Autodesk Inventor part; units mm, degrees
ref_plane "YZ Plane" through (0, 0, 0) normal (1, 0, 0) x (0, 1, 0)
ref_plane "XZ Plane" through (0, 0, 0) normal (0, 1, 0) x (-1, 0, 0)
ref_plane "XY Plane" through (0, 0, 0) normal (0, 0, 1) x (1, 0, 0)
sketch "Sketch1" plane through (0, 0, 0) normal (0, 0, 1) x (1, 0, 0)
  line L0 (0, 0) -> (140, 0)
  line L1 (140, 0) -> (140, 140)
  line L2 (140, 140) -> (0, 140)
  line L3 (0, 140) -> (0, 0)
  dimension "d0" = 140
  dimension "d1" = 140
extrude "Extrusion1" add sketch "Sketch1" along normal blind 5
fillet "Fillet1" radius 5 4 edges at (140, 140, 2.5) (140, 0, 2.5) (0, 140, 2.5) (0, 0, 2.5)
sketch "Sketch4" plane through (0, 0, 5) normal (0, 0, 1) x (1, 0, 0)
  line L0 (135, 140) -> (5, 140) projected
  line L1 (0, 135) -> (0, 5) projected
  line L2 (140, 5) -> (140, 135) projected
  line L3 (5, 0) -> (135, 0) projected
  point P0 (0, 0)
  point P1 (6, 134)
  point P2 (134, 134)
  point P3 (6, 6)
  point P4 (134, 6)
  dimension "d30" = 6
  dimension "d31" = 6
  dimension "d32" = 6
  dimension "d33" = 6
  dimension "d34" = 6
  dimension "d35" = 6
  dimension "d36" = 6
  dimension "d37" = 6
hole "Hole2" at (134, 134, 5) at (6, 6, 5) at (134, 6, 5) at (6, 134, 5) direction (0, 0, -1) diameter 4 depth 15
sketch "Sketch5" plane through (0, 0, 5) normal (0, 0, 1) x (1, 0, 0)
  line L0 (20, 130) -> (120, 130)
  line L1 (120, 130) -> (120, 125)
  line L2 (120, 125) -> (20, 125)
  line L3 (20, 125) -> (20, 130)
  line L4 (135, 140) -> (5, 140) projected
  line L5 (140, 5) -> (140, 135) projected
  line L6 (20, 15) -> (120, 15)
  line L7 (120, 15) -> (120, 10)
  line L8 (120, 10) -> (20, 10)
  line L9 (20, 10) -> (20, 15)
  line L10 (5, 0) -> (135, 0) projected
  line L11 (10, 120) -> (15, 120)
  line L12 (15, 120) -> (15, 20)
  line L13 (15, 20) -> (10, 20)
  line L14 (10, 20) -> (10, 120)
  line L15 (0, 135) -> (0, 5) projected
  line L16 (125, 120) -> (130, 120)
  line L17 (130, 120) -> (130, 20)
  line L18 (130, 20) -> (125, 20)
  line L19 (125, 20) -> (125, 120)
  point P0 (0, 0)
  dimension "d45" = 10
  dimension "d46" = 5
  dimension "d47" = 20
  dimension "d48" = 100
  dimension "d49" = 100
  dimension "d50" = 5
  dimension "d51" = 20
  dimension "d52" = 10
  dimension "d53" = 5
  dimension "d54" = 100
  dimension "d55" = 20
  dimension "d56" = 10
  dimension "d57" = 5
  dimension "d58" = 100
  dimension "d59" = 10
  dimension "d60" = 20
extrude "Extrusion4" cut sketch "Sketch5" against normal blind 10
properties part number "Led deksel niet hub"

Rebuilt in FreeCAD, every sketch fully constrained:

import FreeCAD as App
import Part
import Sketcher
Q = App.Units.Quantity


def edges_at(feature, points):
    """Names of the edges that pass closest to the given points."""
    edges = feature.Shape.Edges
    near = lambda p: min(range(len(edges)), key=lambda i: edges[i].distToShape(Part.Vertex(*p))[0])
    return sorted({f"Edge{near(p) + 1}" for p in points})

doc = App.newDocument("Part")
body = doc.addObject("PartDesign::Body", "Body")

# Sketch on XY plane
sketch1 = body.newObject("Sketcher::SketchObject", "Sketch")
sketch1.AttachmentSupport = (doc.getObject("XY_Plane"), [""])
sketch1.MapMode = "FlatFace"
sketch1.addGeometry(Part.LineSegment(App.Vector(0, 140, 0), App.Vector(0, 0, 0)), False)
sketch1.addGeometry(Part.LineSegment(App.Vector(0, 0, 0), App.Vector(140, 0, 0)), False)
sketch1.addGeometry(Part.LineSegment(App.Vector(140, 0, 0), App.Vector(140, 140, 0)), False)
sketch1.addGeometry(Part.LineSegment(App.Vector(140, 140, 0), App.Vector(0, 140, 0)), False)
sketch1.addConstraint(Sketcher.Constraint("Coincident", 0, 2, 1, 1))
sketch1.addConstraint(Sketcher.Constraint("Coincident", 1, 2, 2, 1))
sketch1.addConstraint(Sketcher.Constraint("Coincident", 2, 2, 3, 1))
sketch1.addConstraint(Sketcher.Constraint("Coincident", 3, 2, 0, 1))
sketch1.addConstraint(Sketcher.Constraint("Vertical", 0))
sketch1.addConstraint(Sketcher.Constraint("Horizontal", 1))
sketch1.addConstraint(Sketcher.Constraint("Vertical", 2))
sketch1.addConstraint(Sketcher.Constraint("Horizontal", 3))
sketch1.addConstraint(Sketcher.Constraint("Coincident", 0, 2, -1, 1))
sketch1.addConstraint(Sketcher.Constraint("Equal", 3, 0))
sketch1.addConstraint(Sketcher.Constraint("DistanceX", 1, 1, 1, 2, Q("140 mm")))
pad1 = body.newObject("PartDesign::Pad", "Pad")
pad1.Profile = sketch1
pad1.Length = 5
doc.recompute()

fillet = body.newObject("PartDesign::Fillet", "Fillet")
fillet.Base = (pad1, edges_at(pad1, [
    (140, 140, 2.5),
    (140, 0, 2.5),
    (0, 140, 2.5),
    (0, 0, 2.5),
]))
fillet.Radius = 5

# Sketch on XY plane
sketch2 = body.newObject("Sketcher::SketchObject", "Sketch001")
sketch2.AttachmentSupport = (doc.getObject("XY_Plane"), [""])
sketch2.MapMode = "FlatFace"
sketch2.AttachmentOffset = App.Placement(App.Vector(0, 0, 5), App.Rotation())
sketch2.addGeometry(Part.Circle(App.Vector(134, 134, 0), App.Vector(0, 0, 1), 2), False)
sketch2.addGeometry(Part.Circle(App.Vector(6, 6, 0), App.Vector(0, 0, 1), 2), False)
sketch2.addGeometry(Part.Circle(App.Vector(134, 6, 0), App.Vector(0, 0, 1), 2), False)
sketch2.addGeometry(Part.Circle(App.Vector(6, 134, 0), App.Vector(0, 0, 1), 2), False)
sketch2.addConstraint(Sketcher.Constraint("Equal", 0, 1))
sketch2.addConstraint(Sketcher.Constraint("Equal", 1, 2))
sketch2.addConstraint(Sketcher.Constraint("Equal", 2, 3))
sketch2.addConstraint(Sketcher.Constraint("Horizontal", 1, 3, 2, 3))
sketch2.addConstraint(Sketcher.Constraint("Horizontal", 0, 3, 3, 3))
sketch2.addConstraint(Sketcher.Constraint("Vertical", 0, 3, 2, 3))
sketch2.addConstraint(Sketcher.Constraint("Vertical", 1, 3, 3, 3))
sketch2.addConstraint(Sketcher.Constraint("Diameter", 0, Q("4 mm")))
sketch2.addConstraint(Sketcher.Constraint("DistanceX", -1, 1, 0, 3, Q("134 mm")))
sketch2.addConstraint(Sketcher.Constraint("DistanceY", -1, 1, 0, 3, Q("134 mm")))
sketch2.addConstraint(Sketcher.Constraint("DistanceX", -1, 1, 1, 3, Q("6 mm")))
sketch2.addConstraint(Sketcher.Constraint("DistanceY", -1, 1, 1, 3, Q("6 mm")))
doc.recompute()
hole = body.newObject("PartDesign::Hole", "Hole")
hole.Profile = sketch2
hole.ThreadType = "None"
hole.Diameter = 4
hole.DepthType = "Dimension"
hole.Depth = 15
hole.DrillPoint = "Flat"

# Sketch on XY plane
sketch3 = body.newObject("Sketcher::SketchObject", "Sketch002")
sketch3.AttachmentSupport = (doc.getObject("XY_Plane"), [""])
sketch3.MapMode = "FlatFace"
sketch3.AttachmentOffset = App.Placement(App.Vector(0, 0, 5), App.Rotation())
sketch3.addGeometry(Part.LineSegment(App.Vector(120, 130, 0), App.Vector(20, 130, 0)), False)
sketch3.addGeometry(Part.LineSegment(App.Vector(20, 130, 0), App.Vector(20, 125, 0)), False)
sketch3.addGeometry(Part.LineSegment(App.Vector(20, 125, 0), App.Vector(120, 125, 0)), False)
sketch3.addGeometry(Part.LineSegment(App.Vector(120, 125, 0), App.Vector(120, 130, 0)), False)
sketch3.addGeometry(Part.LineSegment(App.Vector(120, 15, 0), App.Vector(20, 15, 0)), False)
sketch3.addGeometry(Part.LineSegment(App.Vector(20, 15, 0), App.Vector(20, 10, 0)), False)
sketch3.addGeometry(Part.LineSegment(App.Vector(20, 10, 0), App.Vector(120, 10, 0)), False)
sketch3.addGeometry(Part.LineSegment(App.Vector(120, 10, 0), App.Vector(120, 15, 0)), False)
sketch3.addGeometry(Part.LineSegment(App.Vector(15, 120, 0), App.Vector(10, 120, 0)), False)
sketch3.addGeometry(Part.LineSegment(App.Vector(10, 120, 0), App.Vector(10, 20, 0)), False)
sketch3.addGeometry(Part.LineSegment(App.Vector(10, 20, 0), App.Vector(15, 20, 0)), False)
sketch3.addGeometry(Part.LineSegment(App.Vector(15, 20, 0), App.Vector(15, 120, 0)), False)
sketch3.addGeometry(Part.LineSegment(App.Vector(130, 120, 0), App.Vector(125, 120, 0)), False)
sketch3.addGeometry(Part.LineSegment(App.Vector(125, 120, 0), App.Vector(125, 20, 0)), False)
sketch3.addGeometry(Part.LineSegment(App.Vector(125, 20, 0), App.Vector(130, 20, 0)), False)
sketch3.addGeometry(Part.LineSegment(App.Vector(130, 20, 0), App.Vector(130, 120, 0)), False)
sketch3.addConstraint(Sketcher.Constraint("Coincident", 0, 2, 1, 1))
sketch3.addConstraint(Sketcher.Constraint("Coincident", 1, 2, 2, 1))
sketch3.addConstraint(Sketcher.Constraint("Coincident", 2, 2, 3, 1))
sketch3.addConstraint(Sketcher.Constraint("Coincident", 3, 2, 0, 1))
sketch3.addConstraint(Sketcher.Constraint("Coincident", 4, 2, 5, 1))
sketch3.addConstraint(Sketcher.Constraint("Coincident", 5, 2, 6, 1))
sketch3.addConstraint(Sketcher.Constraint("Coincident", 6, 2, 7, 1))
sketch3.addConstraint(Sketcher.Constraint("Coincident", 7, 2, 4, 1))
sketch3.addConstraint(Sketcher.Constraint("Coincident", 8, 2, 9, 1))
sketch3.addConstraint(Sketcher.Constraint("Coincident", 9, 2, 10, 1))
sketch3.addConstraint(Sketcher.Constraint("Coincident", 10, 2, 11, 1))
sketch3.addConstraint(Sketcher.Constraint("Coincident", 11, 2, 8, 1))
sketch3.addConstraint(Sketcher.Constraint("Coincident", 12, 2, 13, 1))
sketch3.addConstraint(Sketcher.Constraint("Coincident", 13, 2, 14, 1))
sketch3.addConstraint(Sketcher.Constraint("Coincident", 14, 2, 15, 1))
sketch3.addConstraint(Sketcher.Constraint("Coincident", 15, 2, 12, 1))
sketch3.addConstraint(Sketcher.Constraint("Horizontal", 0))
sketch3.addConstraint(Sketcher.Constraint("Vertical", 1))
sketch3.addConstraint(Sketcher.Constraint("Horizontal", 2))
sketch3.addConstraint(Sketcher.Constraint("Vertical", 3))
sketch3.addConstraint(Sketcher.Constraint("Horizontal", 4))
sketch3.addConstraint(Sketcher.Constraint("Vertical", 5))
sketch3.addConstraint(Sketcher.Constraint("Horizontal", 6))
sketch3.addConstraint(Sketcher.Constraint("Vertical", 7))
sketch3.addConstraint(Sketcher.Constraint("Horizontal", 8))
sketch3.addConstraint(Sketcher.Constraint("Vertical", 9))
sketch3.addConstraint(Sketcher.Constraint("Horizontal", 10))
sketch3.addConstraint(Sketcher.Constraint("Vertical", 11))
sketch3.addConstraint(Sketcher.Constraint("Horizontal", 12))
sketch3.addConstraint(Sketcher.Constraint("Vertical", 13))
sketch3.addConstraint(Sketcher.Constraint("Horizontal", 14))
sketch3.addConstraint(Sketcher.Constraint("Vertical", 15))
sketch3.addConstraint(Sketcher.Constraint("Horizontal", 11, 2, 12, 2))
sketch3.addConstraint(Sketcher.Constraint("Horizontal", 10, 2, 13, 2))
sketch3.addConstraint(Sketcher.Constraint("Vertical", 1, 2, 4, 2))
sketch3.addConstraint(Sketcher.Constraint("Vertical", 3, 2, 6, 2))
sketch3.addConstraint(Sketcher.Constraint("Equal", 10, 12))
sketch3.addConstraint(Sketcher.Constraint("Equal", 14, 1))
sketch3.addConstraint(Sketcher.Constraint("Equal", 3, 5))
sketch3.addConstraint(Sketcher.Constraint("Equal", 6, 9))
sketch3.addConstraint(Sketcher.Constraint("DistanceX", 0, 2, 0, 1, Q("100 mm")))
sketch3.addConstraint(Sketcher.Constraint("DistanceX", 8, 2, 8, 1, Q("5 mm")))
sketch3.addConstraint(Sketcher.Constraint("DistanceX", -1, 1, 0, 2, Q("20 mm")))
sketch3.addConstraint(Sketcher.Constraint("DistanceY", -1, 1, 5, 2, Q("10 mm")))
sketch3.addConstraint(Sketcher.Constraint("DistanceX", -1, 1, 8, 2, Q("10 mm")))
sketch3.addConstraint(Sketcher.Constraint("DistanceY", -1, 1, 9, 2, Q("20 mm")))
sketch3.addConstraint(Sketcher.Constraint("DistanceY", 8, 2, 1, 2, Q("5 mm")))
sketch3.addConstraint(Sketcher.Constraint("DistanceX", 2, 2, 12, 2, Q("5 mm")))
pocket1 = body.newObject("PartDesign::Pocket", "Pocket")
pocket1.Profile = sketch3
pocket1.Length = 10

doc.recompute()
